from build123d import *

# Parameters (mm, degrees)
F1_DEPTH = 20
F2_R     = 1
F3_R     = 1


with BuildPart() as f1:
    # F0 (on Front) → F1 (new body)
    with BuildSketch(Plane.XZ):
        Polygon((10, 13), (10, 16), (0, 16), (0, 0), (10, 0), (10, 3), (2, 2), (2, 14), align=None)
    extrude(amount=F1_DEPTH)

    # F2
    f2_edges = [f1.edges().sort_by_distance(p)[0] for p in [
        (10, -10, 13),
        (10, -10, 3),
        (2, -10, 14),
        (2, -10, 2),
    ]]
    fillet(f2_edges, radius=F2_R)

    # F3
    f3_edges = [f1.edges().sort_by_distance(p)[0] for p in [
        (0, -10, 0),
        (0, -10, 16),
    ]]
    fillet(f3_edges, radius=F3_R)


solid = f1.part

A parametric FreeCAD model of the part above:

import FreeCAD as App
import Part
import Sketcher
from FreeCAD import Vector
Q = App.Units.Quantity


def edges_at(feature, points):
    """Names of the edges that pass closest to the given points."""
    edges = feature.Shape.Edges
    near = lambda p: min(range(len(edges)), key=lambda i: edges[i].distToShape(Part.Vertex(*p))[0])
    return sorted({f"Edge{near(p) + 1}" for p in points})

doc = App.newDocument("Part")
body = doc.addObject("PartDesign::Body", "Body")

# Sketch on XZ plane
sketch1 = doc.addObject("Sketcher::SketchObject", "Sketch")
body.addObject(sketch1)
sketch1.AttachmentSupport = (doc.XZ_Plane, [""])
sketch1.MapMode = "FlatFace"
sketch1.addGeometry(Part.LineSegment(Vector(10, 13, 0), Vector(10, 16, 0)), False)
sketch1.addGeometry(Part.LineSegment(Vector(10, 16, 0), Vector(0, 16, 0)), False)
sketch1.addGeometry(Part.LineSegment(Vector(0, 16, 0), Vector(0, 0, 0)), False)
sketch1.addGeometry(Part.LineSegment(Vector(0, 0, 0), Vector(10, 0, 0)), False)
sketch1.addGeometry(Part.LineSegment(Vector(10, 0, 0), Vector(10, 3, 0)), False)
sketch1.addGeometry(Part.LineSegment(Vector(10, 3, 0), Vector(2, 2, 0)), False)
sketch1.addGeometry(Part.LineSegment(Vector(2, 2, 0), Vector(2, 14, 0)), False)
sketch1.addGeometry(Part.LineSegment(Vector(2, 14, 0), Vector(10, 13, 0)), False)
sketch1.addConstraint(Sketcher.Constraint("Coincident", 0, 2, 1, 1))
sketch1.addConstraint(Sketcher.Constraint("Coincident", 1, 2, 2, 1))
sketch1.addConstraint(Sketcher.Constraint("Coincident", 2, 2, 3, 1))
sketch1.addConstraint(Sketcher.Constraint("Coincident", 3, 2, 4, 1))
sketch1.addConstraint(Sketcher.Constraint("Coincident", 4, 2, 5, 1))
sketch1.addConstraint(Sketcher.Constraint("Coincident", 5, 2, 6, 1))
sketch1.addConstraint(Sketcher.Constraint("Coincident", 6, 2, 7, 1))
sketch1.addConstraint(Sketcher.Constraint("Coincident", 7, 2, 0, 1))
sketch1.addConstraint(Sketcher.Constraint("Vertical", 0))
sketch1.addConstraint(Sketcher.Constraint("Horizontal", 1))
sketch1.addConstraint(Sketcher.Constraint("Vertical", 2))
sketch1.addConstraint(Sketcher.Constraint("Horizontal", 3))
sketch1.addConstraint(Sketcher.Constraint("Vertical", 4))
sketch1.addConstraint(Sketcher.Constraint("Vertical", 6))
sketch1.addConstraint(Sketcher.Constraint("Coincident", 2, 2, -1, 1))
sketch1.addConstraint(Sketcher.Constraint("Vertical", 0, 2, 3, 2))
sketch1.addConstraint(Sketcher.Constraint("Equal", 0, 4))
sketch1.addConstraint(Sketcher.Constraint("Equal", 5, 7))
sketch1.addConstraint(Sketcher.Constraint("DistanceX", 1, 2, 1, 1, Q("10 mm")))
sketch1.addConstraint(Sketcher.Constraint("DistanceY", 0, 1, 0, 2, Q("3 mm")))
sketch1.addConstraint(Sketcher.Constraint("DistanceY", 2, 2, 2, 1, Q("16 mm")))
sketch1.addConstraint(Sketcher.Constraint("DistanceY", 6, 1, 6, 2, Q("12 mm")))
sketch1.addConstraint(Sketcher.Constraint("DistanceX", -1, 1, 5, 2, Q("2 mm")))
pad1 = doc.addObject("PartDesign::Pad", "Pad")
body.addObject(pad1)
pad1.Profile = sketch1
pad1.Length = 20
doc.recompute()

fillet = doc.addObject("PartDesign::Fillet", "Fillet")
body.addObject(fillet)
fillet.Base = (pad1, edges_at(pad1, [
    (10, -10, 13),
    (10, -10, 3),
    (2, -10, 14),
    (2, -10, 2),
]))
fillet.Radius = 1
doc.recompute()

fillet2 = doc.addObject("PartDesign::Fillet", "Fillet001")
body.addObject(fillet2)
fillet2.Base = (fillet, edges_at(fillet, [(0, -10, 0), (0, -10, 16)]))
fillet2.Radius = 1

doc.recompute()
